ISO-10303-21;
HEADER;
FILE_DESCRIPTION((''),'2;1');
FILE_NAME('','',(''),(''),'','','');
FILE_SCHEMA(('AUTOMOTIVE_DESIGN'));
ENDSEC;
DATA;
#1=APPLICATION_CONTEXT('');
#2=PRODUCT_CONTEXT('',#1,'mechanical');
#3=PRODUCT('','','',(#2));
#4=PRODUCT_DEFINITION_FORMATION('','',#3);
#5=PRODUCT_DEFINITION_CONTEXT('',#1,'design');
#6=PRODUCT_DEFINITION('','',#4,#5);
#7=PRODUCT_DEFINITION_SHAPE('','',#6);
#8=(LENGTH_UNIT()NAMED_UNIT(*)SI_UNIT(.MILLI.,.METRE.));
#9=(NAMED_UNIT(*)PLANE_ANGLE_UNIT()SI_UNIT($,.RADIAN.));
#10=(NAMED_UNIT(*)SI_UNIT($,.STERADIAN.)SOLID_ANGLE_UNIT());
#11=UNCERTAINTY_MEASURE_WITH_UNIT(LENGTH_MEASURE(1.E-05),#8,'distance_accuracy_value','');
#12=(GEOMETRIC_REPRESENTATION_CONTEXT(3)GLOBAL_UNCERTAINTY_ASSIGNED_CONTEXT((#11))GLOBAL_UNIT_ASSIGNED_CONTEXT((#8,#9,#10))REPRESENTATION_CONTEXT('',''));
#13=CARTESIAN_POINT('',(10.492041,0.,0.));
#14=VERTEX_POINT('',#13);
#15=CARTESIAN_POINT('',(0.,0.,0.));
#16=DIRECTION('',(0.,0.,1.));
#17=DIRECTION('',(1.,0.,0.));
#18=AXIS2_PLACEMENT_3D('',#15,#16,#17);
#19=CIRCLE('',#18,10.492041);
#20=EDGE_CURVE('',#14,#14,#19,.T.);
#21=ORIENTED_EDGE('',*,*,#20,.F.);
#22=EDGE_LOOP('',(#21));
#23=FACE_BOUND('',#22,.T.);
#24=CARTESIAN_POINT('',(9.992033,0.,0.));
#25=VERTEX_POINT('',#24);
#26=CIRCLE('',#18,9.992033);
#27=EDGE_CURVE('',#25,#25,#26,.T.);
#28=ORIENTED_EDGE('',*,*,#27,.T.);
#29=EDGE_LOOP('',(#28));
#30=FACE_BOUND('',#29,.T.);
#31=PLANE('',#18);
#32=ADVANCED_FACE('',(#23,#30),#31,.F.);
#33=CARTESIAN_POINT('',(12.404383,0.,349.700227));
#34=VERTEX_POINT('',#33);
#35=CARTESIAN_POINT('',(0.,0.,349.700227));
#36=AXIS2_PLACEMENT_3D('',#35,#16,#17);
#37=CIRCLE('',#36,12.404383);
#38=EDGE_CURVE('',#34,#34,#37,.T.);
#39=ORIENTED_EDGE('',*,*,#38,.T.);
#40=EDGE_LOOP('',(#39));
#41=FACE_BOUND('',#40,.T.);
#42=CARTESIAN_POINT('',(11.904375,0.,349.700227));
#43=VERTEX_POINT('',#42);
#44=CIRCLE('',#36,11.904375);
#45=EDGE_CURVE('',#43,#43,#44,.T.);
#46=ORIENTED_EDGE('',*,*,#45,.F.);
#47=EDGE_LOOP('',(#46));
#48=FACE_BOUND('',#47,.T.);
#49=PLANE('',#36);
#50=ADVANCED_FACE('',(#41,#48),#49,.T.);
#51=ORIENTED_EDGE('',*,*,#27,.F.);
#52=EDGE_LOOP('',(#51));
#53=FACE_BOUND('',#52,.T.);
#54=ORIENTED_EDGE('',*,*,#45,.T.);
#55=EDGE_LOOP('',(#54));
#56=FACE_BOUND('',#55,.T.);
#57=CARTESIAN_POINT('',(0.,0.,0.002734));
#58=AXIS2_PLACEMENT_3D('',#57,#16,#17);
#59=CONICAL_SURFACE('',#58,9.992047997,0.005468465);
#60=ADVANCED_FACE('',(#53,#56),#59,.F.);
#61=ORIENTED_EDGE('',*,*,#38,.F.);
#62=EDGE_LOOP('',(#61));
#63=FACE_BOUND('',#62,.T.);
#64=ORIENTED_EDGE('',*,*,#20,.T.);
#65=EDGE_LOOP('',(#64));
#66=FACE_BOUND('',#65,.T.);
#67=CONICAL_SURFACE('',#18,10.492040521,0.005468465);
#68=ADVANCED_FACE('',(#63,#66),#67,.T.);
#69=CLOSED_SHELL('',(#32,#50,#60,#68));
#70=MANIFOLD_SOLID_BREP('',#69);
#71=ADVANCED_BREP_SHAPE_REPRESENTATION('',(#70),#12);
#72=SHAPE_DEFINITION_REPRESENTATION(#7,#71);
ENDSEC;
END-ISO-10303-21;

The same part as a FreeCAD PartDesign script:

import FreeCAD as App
import Part
import Sketcher

V = App.Vector
Q = App.Units.Quantity


def faces_at(feature, points):
    """Names of the faces that lie closest to the given points."""
    faces = feature.Shape.Faces
    near = lambda p: min(range(len(faces)), key=lambda i: faces[i].distToShape(Part.Vertex(*p))[0])
    return sorted({f"Face{near(p) + 1}" for p in points})

doc = App.newDocument("Part")
body = doc.addObject("PartDesign::Body", "Body")

# Sketch on XY plane
sketch1 = body.newObject("Sketcher::SketchObject", "Sketch")
sketch1.AttachmentSupport = (doc.getObject("XY_Plane"), [""])
sketch1.MapMode = "FlatFace"
sketch1.addGeometry(Part.Circle(V(0, 0, 0), V(0, 0, 1), 10), False)
sketch1.addConstraint([
    Sketcher.Constraint("Coincident", 0, 3, -1, 1),
    Sketcher.Constraint("Diameter", 0, Q("20.984081 mm")),
])

# Sketch on XY plane
sketch2 = body.newObject("Sketcher::SketchObject", "Sketch001")
sketch2.AttachmentSupport = (doc.getObject("XY_Plane"), [""])
sketch2.MapMode = "FlatFace"
sketch2.AttachmentOffset = App.Placement(V(0, 0, 349.700227), App.Rotation())
sketch2.addGeometry(Part.Circle(V(0, 0, 0), V(0, 0, 1), 12), False)
sketch2.addConstraint([
    Sketcher.Constraint("Coincident", 0, 3, -1, 1),
    Sketcher.Constraint("Diameter", 0, Q("24.808766 mm")),
])

additiveloft = body.newObject("PartDesign::AdditiveLoft", "AdditiveLoft")
additiveloft.Profile = sketch1
additiveloft.Sections = [sketch2]
doc.recompute()

thickness = body.newObject("PartDesign::Thickness", "Thickness")
thickness.Base = (additiveloft, faces_at(additiveloft, [(0, 0, 349.7), (0, 0, 0)]))
thickness.Value = 0.5
thickness.Reversed = True
thickness.Join = "Intersection"

doc.recompute()
